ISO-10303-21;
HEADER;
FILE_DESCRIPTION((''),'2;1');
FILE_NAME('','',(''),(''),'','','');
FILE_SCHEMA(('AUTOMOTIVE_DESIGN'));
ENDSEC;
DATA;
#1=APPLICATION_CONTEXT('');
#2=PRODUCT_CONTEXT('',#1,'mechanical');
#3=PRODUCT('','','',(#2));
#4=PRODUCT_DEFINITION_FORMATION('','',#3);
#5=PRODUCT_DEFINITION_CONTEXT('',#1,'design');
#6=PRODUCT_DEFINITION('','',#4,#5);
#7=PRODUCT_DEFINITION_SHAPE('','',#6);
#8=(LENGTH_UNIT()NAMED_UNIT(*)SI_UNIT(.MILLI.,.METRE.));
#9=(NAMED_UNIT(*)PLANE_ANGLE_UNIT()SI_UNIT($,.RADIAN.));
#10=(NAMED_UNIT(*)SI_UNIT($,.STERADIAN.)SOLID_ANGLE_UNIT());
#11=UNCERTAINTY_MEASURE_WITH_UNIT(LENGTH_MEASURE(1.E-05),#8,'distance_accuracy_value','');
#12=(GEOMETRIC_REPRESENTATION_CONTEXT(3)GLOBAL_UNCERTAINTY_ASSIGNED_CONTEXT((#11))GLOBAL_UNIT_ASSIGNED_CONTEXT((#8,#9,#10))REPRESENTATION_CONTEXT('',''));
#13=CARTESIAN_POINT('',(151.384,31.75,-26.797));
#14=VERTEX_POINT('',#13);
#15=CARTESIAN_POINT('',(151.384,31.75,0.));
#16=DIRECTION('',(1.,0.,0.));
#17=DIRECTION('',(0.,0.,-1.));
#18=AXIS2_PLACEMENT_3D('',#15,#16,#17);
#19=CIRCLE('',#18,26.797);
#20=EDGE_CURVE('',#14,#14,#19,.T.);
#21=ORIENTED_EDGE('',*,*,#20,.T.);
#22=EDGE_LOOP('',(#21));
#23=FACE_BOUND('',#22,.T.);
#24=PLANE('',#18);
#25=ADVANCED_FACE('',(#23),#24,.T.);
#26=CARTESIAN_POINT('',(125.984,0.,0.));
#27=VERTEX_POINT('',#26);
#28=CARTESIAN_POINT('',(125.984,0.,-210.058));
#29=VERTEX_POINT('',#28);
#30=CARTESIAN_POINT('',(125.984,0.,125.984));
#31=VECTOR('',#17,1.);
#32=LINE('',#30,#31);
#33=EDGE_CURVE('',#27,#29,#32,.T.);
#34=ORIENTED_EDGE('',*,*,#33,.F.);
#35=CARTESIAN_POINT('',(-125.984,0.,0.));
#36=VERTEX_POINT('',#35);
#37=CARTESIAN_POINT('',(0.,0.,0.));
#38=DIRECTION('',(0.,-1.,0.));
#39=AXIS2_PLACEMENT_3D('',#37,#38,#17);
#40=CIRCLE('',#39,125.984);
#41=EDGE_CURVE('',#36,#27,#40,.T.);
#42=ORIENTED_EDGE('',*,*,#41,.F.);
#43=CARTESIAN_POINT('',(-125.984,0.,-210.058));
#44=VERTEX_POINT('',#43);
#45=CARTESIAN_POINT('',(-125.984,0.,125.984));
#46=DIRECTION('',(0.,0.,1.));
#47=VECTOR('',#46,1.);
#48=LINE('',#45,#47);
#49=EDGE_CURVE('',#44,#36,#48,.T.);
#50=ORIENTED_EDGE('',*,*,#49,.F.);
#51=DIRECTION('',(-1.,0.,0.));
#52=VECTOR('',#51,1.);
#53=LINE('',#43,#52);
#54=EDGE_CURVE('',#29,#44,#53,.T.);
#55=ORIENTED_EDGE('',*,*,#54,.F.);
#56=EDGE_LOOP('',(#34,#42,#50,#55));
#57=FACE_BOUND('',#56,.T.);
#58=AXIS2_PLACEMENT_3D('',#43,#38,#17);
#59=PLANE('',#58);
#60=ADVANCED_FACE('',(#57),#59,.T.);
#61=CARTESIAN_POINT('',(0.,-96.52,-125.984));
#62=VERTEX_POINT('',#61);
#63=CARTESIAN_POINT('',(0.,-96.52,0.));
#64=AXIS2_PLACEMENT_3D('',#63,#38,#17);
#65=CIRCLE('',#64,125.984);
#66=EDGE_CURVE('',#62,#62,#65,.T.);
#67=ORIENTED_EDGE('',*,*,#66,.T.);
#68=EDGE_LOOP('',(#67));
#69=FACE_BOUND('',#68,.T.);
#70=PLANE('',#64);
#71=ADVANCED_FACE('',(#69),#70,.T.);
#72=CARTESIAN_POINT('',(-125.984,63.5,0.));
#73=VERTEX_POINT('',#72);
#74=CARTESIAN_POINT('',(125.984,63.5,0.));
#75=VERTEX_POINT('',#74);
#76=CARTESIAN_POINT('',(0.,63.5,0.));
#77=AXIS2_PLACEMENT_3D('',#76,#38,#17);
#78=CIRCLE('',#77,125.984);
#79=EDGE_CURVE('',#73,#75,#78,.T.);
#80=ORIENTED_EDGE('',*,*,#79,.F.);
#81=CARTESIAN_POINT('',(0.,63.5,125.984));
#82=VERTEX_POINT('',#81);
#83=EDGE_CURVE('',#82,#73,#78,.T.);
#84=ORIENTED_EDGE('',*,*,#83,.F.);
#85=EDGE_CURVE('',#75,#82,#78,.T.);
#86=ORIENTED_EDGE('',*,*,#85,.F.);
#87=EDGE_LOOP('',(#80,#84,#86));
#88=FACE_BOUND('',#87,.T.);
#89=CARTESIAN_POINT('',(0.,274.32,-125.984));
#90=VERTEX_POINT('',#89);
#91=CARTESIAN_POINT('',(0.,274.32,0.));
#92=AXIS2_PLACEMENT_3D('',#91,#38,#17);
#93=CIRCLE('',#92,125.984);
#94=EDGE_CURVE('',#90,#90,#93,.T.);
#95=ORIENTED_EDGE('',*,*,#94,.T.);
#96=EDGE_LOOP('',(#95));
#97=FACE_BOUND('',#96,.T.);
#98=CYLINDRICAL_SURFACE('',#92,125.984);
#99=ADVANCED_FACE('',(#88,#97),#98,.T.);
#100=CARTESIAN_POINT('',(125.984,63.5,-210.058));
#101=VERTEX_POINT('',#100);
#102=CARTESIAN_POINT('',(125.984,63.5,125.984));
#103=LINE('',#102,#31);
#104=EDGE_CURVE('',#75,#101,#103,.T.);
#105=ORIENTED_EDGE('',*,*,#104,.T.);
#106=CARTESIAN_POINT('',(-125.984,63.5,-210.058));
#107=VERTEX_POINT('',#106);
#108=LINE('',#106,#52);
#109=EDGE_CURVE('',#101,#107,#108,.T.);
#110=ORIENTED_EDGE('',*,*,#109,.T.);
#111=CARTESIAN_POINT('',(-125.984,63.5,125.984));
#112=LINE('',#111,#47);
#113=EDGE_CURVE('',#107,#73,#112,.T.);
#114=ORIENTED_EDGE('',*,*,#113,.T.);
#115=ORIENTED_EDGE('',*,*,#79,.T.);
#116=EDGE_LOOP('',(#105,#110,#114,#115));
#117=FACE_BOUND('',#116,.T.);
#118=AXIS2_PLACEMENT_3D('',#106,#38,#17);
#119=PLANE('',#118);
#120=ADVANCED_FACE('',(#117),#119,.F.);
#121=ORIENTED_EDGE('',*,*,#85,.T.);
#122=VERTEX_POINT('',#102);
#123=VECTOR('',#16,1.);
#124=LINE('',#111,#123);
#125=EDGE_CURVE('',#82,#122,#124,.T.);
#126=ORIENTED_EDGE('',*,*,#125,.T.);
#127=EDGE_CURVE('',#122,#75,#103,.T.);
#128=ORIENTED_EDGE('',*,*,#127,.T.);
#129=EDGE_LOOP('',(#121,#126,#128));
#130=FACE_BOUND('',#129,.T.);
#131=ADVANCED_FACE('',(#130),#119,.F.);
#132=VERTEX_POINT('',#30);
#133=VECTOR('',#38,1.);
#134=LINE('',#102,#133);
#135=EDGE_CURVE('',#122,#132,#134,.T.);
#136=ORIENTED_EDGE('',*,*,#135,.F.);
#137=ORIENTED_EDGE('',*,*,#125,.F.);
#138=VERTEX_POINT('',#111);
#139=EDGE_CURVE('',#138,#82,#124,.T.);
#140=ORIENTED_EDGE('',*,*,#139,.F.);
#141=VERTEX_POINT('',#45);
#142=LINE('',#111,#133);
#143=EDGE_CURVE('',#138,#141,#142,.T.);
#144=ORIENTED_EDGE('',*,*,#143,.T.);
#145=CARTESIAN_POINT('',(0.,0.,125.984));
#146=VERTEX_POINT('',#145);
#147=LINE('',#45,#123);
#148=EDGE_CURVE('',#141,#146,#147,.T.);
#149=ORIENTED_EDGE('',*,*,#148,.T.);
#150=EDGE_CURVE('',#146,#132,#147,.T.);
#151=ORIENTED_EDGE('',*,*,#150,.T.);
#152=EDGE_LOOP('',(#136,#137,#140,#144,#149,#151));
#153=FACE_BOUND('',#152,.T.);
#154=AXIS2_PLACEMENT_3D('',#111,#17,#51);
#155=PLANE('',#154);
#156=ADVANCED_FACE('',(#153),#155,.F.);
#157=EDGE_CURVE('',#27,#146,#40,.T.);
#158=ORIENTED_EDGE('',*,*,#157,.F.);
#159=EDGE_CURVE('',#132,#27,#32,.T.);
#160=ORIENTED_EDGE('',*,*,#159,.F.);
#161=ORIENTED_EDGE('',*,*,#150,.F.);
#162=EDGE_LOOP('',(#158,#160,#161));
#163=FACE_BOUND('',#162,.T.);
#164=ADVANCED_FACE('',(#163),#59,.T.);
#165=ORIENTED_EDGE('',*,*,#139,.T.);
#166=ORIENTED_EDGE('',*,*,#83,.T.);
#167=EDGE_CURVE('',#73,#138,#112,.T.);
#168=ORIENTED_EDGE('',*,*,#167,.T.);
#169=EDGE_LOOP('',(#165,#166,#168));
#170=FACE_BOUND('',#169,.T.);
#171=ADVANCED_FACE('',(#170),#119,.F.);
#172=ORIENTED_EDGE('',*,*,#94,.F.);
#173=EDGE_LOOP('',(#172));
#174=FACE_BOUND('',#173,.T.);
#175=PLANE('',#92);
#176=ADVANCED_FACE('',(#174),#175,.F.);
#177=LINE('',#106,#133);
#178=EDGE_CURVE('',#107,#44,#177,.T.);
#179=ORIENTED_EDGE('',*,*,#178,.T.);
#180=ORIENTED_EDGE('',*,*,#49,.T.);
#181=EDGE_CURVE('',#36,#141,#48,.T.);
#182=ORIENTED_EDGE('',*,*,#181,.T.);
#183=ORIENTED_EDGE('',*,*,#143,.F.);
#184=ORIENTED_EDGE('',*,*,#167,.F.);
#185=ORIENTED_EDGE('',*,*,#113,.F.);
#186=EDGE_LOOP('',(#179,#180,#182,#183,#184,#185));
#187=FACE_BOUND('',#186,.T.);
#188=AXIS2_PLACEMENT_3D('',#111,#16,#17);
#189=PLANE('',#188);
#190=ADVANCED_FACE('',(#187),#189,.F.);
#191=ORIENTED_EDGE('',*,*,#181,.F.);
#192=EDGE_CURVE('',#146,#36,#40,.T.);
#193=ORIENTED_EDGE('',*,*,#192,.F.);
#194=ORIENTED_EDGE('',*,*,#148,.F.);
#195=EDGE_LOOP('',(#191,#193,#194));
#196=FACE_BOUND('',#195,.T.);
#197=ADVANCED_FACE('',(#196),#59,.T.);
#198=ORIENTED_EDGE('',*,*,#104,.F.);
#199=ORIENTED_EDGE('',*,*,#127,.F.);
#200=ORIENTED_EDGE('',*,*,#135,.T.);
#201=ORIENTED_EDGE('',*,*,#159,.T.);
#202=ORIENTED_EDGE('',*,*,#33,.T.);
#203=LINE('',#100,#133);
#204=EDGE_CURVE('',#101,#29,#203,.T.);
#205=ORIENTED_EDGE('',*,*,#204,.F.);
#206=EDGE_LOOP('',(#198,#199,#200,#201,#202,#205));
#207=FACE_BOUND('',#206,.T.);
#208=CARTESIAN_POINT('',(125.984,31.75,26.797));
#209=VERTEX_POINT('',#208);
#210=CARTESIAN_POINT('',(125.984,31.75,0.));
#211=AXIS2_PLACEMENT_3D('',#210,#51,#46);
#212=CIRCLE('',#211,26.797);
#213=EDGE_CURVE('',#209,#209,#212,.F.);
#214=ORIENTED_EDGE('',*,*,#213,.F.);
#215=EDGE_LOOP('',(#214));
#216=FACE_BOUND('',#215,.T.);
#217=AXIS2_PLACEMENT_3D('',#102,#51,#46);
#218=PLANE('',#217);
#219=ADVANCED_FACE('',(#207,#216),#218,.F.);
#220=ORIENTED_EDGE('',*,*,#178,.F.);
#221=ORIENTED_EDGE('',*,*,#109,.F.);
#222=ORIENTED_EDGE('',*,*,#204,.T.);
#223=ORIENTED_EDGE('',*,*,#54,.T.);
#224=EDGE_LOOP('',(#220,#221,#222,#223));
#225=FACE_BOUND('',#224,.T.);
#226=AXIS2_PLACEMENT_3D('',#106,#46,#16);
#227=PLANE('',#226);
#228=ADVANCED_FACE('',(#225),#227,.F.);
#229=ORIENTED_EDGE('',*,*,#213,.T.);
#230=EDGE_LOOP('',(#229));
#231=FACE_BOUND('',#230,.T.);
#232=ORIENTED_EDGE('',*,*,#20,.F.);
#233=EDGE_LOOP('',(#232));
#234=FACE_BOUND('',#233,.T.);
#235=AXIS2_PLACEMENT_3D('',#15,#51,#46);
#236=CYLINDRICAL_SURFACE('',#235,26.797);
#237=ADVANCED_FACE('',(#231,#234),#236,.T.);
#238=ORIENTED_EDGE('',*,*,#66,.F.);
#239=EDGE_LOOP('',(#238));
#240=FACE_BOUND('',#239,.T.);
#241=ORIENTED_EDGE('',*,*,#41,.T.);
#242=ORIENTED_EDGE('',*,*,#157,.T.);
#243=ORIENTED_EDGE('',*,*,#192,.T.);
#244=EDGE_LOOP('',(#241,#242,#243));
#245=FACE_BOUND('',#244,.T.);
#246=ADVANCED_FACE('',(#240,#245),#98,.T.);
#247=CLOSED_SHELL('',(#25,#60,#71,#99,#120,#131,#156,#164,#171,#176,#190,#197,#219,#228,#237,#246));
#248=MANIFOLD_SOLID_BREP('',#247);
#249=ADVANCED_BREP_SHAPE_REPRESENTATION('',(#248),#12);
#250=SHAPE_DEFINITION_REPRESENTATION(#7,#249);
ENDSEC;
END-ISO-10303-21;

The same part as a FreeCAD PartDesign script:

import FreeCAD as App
import Part
import Sketcher
from FreeCAD import Vector
Q = App.Units.Quantity


def add_polygon(sketch, points):
    """Adds a closed chain of lines whose ends are joined by coincident constraints."""
    first, n = sketch.GeometryCount, len(points)
    for a, b in zip(points, points[1:] + points[:1]):
        sketch.addGeometry(Part.LineSegment(App.Vector(*a, 0), App.Vector(*b, 0)), False)
    for i in range(n):
        sketch.addConstraint(Sketcher.Constraint("Coincident", first + i, 2, first + (i + 1) % n, 1))

doc = App.newDocument("Part")
params = doc.addObject("Spreadsheet::Sheet", "Params")
for row, (alias, value) in enumerate([
    ("sketch1_width", "9.92 in"),
    ("sketch1_height", "13.23 in"),
    ("pad1_length", "2.5 in"),
    ("sketch2_diameter", "9.92 in"),
    ("pad2_length", "3.8 in"),
    ("pad2_length2", "10.8 in"),
    ("sketch3_diameter", "2.11 in"),
    ("pad3_length", "1 in"),
], start=1):
    params.set(f"A{row}", alias)
    params.set(f"B{row}", "=" + value)
    params.setAlias(f"B{row}", alias)

body = doc.addObject("PartDesign::Body", "Body")

sketch1 = body.newObject("Sketcher::SketchObject", "Sketch")
sketch1.AttachmentSupport = (doc.getObject("XZ_Plane"), [""])
sketch1.MapMode = "FlatFace"
add_polygon(sketch1, [(-126, -210), (-126, 126), (126, 126), (126, -210)])
sketch1.addConstraint([
    Sketcher.Constraint("Vertical", 0),
    Sketcher.Constraint("Horizontal", 1),
    Sketcher.Constraint("Vertical", 2),
    Sketcher.Constraint("Horizontal", 3),
    Sketcher.Constraint("DistanceX", 1, 1, 1, 2, Q("9.92 in")),
    Sketcher.Constraint("DistanceY", 0, 1, 0, 2, Q("13.23 in")),
    Sketcher.Constraint("DistanceX", 0, 2, -1, 1, Q("4.96 in")),
    Sketcher.Constraint("DistanceY", -1, 1, 0, 2, Q("4.96 in")),
])
sketch1.setExpression("Constraints[8]", "Params.sketch1_width")
sketch1.setExpression("Constraints[9]", "Params.sketch1_height")
pad1 = body.newObject("PartDesign::Pad", "Pad")
pad1.Profile = sketch1
pad1.setExpression("Length", "Params.pad1_length")
pad1.Reversed = True

sketch2 = body.newObject("Sketcher::SketchObject", "Sketch001")
sketch2.AttachmentSupport = (doc.getObject("XZ_Plane"), [""])
sketch2.MapMode = "FlatFace"
sketch2.addGeometry(Part.Circle(Vector(0, 0, 0), Vector(0, 0, 1), 126), False)
sketch2.addConstraint([
    Sketcher.Constraint("Coincident", 0, 3, -1, 1),
    Sketcher.Constraint("Diameter", 0, Q("9.92 in")),
])
sketch2.setExpression("Constraints[1]", "Params.sketch2_diameter")
pad2 = body.newObject("PartDesign::Pad", "Pad001")
pad2.Profile = sketch2
pad2.Type = "TwoLengths"
pad2.setExpression("Length", "Params.pad2_length")
pad2.setExpression("Length2", "Params.pad2_length2")

sketch3 = body.newObject("Sketcher::SketchObject", "Sketch002")
sketch3.AttachmentSupport = (doc.getObject("YZ_Plane"), [""])
sketch3.MapMode = "FlatFace"
sketch3.AttachmentOffset = App.Placement(Vector(0, 0, 4.96 * 25.4), App.Rotation())
sketch3.addGeometry(Part.Circle(Vector(32, 0, 0), Vector(0, 0, 1), 27), False)
sketch3.addConstraint([
    Sketcher.Constraint("PointOnObject", 0, 3, -1),
    Sketcher.Constraint("Diameter", 0, Q("2.11 in")),
    Sketcher.Constraint("DistanceX", -1, 1, 0, 3, Q("1.25 in")),
])
sketch3.setExpression("Constraints[1]", "Params.sketch3_diameter")
pad3 = body.newObject("PartDesign::Pad", "Pad002")
pad3.Profile = sketch3
pad3.setExpression("Length", "Params.pad3_length")

doc.recompute()
